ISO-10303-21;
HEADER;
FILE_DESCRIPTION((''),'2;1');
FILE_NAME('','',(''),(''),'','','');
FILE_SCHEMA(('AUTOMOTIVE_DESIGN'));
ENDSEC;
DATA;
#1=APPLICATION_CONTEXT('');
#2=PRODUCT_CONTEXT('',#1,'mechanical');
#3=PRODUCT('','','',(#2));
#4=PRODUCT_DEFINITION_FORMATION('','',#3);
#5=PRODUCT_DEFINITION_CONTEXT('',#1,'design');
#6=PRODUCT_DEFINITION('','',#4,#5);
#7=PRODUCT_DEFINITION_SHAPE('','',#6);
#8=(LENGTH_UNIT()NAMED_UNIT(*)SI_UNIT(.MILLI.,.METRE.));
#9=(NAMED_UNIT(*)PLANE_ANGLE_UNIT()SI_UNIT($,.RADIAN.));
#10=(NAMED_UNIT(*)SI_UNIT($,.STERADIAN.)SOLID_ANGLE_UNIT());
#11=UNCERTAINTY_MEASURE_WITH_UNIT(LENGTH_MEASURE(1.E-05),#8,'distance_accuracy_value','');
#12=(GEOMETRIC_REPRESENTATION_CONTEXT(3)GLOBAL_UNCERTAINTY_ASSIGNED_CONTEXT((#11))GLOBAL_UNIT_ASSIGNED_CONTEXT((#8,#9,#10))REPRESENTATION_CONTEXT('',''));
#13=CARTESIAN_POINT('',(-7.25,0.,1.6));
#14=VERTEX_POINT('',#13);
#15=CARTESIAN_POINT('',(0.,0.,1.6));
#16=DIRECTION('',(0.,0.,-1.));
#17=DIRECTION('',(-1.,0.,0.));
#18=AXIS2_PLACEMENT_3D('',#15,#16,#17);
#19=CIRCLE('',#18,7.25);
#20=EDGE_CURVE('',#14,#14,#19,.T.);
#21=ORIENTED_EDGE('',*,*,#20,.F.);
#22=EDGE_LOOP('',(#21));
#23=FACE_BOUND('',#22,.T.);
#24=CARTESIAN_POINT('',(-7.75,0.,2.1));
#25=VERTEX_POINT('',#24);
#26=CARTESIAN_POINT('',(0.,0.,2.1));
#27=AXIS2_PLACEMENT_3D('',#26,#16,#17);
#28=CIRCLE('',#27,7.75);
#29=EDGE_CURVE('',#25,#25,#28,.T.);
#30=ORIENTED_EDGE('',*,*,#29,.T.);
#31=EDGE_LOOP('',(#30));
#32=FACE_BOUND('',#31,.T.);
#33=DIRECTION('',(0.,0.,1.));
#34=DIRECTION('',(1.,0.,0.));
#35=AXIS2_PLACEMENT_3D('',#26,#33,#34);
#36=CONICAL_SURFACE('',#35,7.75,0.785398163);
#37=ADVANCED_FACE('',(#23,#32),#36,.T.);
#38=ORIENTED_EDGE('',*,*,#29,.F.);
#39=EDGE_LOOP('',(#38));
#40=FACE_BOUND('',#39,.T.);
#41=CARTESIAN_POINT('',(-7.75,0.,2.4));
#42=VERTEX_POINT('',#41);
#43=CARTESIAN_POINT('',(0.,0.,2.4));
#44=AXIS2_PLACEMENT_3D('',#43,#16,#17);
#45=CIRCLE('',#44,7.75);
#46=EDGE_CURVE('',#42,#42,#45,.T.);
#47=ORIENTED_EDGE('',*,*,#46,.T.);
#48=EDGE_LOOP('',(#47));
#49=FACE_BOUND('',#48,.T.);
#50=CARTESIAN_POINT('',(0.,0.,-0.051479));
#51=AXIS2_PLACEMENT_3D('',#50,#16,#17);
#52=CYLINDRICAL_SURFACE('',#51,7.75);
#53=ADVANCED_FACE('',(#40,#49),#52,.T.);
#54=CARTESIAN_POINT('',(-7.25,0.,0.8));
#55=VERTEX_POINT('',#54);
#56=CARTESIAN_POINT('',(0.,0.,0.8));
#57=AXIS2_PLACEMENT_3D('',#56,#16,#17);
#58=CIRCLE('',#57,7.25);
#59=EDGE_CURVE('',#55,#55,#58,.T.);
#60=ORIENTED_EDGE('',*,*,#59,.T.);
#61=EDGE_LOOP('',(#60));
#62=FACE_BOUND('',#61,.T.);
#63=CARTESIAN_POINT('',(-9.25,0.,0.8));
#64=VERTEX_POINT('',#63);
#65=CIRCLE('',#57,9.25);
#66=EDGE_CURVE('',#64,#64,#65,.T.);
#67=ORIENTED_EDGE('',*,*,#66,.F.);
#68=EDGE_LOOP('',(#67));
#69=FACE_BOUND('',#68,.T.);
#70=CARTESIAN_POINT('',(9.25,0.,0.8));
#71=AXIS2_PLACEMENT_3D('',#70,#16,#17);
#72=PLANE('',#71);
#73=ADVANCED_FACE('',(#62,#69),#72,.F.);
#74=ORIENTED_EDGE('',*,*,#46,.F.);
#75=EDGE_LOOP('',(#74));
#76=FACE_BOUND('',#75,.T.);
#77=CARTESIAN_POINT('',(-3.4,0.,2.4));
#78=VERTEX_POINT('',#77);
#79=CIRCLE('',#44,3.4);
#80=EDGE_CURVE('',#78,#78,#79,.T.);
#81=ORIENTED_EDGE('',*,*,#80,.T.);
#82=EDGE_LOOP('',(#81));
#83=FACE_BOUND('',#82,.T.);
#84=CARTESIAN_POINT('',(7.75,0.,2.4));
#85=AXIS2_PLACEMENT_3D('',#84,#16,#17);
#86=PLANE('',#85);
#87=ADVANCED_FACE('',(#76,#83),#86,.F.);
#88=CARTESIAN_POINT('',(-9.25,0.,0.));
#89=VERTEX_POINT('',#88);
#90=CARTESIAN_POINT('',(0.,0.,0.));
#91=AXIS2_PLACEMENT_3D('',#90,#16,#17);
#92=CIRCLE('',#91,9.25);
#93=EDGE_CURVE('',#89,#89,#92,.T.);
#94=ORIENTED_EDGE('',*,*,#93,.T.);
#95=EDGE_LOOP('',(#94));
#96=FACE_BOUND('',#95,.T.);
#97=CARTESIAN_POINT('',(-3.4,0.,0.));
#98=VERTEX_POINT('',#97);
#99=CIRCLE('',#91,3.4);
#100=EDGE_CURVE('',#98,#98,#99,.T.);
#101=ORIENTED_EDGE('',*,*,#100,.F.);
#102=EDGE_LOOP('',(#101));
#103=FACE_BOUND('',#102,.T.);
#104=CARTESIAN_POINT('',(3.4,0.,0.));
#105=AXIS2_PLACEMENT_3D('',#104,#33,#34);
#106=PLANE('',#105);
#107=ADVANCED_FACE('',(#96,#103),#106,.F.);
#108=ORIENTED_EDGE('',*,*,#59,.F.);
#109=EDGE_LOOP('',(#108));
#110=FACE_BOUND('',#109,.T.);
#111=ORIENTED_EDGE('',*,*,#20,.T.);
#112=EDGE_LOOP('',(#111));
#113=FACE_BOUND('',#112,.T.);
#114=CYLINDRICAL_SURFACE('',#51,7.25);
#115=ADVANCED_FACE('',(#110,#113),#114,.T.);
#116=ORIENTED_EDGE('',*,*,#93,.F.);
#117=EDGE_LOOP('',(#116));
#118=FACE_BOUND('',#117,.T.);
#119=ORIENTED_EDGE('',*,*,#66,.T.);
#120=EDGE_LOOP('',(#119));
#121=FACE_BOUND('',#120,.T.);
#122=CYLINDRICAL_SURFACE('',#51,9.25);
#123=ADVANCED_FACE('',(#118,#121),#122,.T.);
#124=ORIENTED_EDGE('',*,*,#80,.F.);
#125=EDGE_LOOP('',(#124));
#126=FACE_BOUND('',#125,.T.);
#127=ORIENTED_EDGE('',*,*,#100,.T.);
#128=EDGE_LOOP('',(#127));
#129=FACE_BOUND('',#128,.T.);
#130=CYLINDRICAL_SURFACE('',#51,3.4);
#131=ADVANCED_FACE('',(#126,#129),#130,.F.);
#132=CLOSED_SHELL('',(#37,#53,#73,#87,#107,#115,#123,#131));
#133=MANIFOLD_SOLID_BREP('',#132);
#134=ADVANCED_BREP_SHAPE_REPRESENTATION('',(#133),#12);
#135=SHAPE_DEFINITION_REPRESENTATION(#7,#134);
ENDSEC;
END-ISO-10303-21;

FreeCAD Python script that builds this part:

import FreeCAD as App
import Part
import Sketcher
from FreeCAD import Vector
Q = App.Units.Quantity


def add_polygon(sketch, points):
    """Adds a closed chain of lines whose ends are joined by coincident constraints."""
    first, n = sketch.GeometryCount, len(points)
    for a, b in zip(points, points[1:] + points[:1]):
        sketch.addGeometry(Part.LineSegment(App.Vector(*a, 0), App.Vector(*b, 0)), False)
    for i in range(n):
        sketch.addConstraint(Sketcher.Constraint("Coincident", first + i, 2, first + (i + 1) % n, 1))

doc = App.newDocument("Part")
body = doc.addObject("PartDesign::Body", "Body")

sketch1 = body.newObject("Sketcher::SketchObject", "Sketch")
sketch1.AttachmentSupport = (doc.getObject("XZ_Plane"), [""])
sketch1.MapMode = "FlatFace"
add_polygon(sketch1, [(9.25, 0), (3.4, 0), (3.4, 2.4), (7.75, 2.4), (7.75, 2.1), (7.25, 1.6), (7.25, 0.8), (9.25, 0.8)])
sketch1.addConstraint(Sketcher.Constraint("Horizontal", 0))
sketch1.addConstraint(Sketcher.Constraint("Vertical", 1))
sketch1.addConstraint(Sketcher.Constraint("Horizontal", 2))
sketch1.addConstraint(Sketcher.Constraint("Vertical", 3))
sketch1.addConstraint(Sketcher.Constraint("Vertical", 5))
sketch1.addConstraint(Sketcher.Constraint("Horizontal", 6))
sketch1.addConstraint(Sketcher.Constraint("Vertical", 7))
sketch1.addConstraint(Sketcher.Constraint("PointOnObject", 0, 2, -1))
sketch1.addConstraint(Sketcher.Constraint("Equal", 5, 7))
sketch1.addConstraint(Sketcher.Constraint("DistanceX", 6, 1, 6, 2, Q("2 mm")))
sketch1.addConstraint(Sketcher.Constraint("Angle", 4, Q("-135 deg")))
sketch1.addConstraint(Sketcher.Constraint("DistanceY", 1, 1, 1, 2, Q("2.4 mm")))
sketch1.addConstraint(Sketcher.Constraint("DistanceY", 3, 2, 3, 1, Q("0.3 mm")))
sketch1.addConstraint(Sketcher.Constraint("DistanceY", 5, 2, 5, 1, Q("0.8 mm")))
sketch1.addConstraint(Sketcher.Constraint("DistanceX", 0, 2, 0, 1, Q("5.85 mm")))
sketch1.addConstraint(Sketcher.Constraint("DistanceX", -1, 1, 0, 2, Q("3.4 mm")))
revolution = body.newObject("PartDesign::Revolution", "Revolution")
revolution.Profile = sketch1
revolution.ReferenceAxis = (sketch1, ["V_Axis"])
revolution.Angle = 360

doc.recompute()
